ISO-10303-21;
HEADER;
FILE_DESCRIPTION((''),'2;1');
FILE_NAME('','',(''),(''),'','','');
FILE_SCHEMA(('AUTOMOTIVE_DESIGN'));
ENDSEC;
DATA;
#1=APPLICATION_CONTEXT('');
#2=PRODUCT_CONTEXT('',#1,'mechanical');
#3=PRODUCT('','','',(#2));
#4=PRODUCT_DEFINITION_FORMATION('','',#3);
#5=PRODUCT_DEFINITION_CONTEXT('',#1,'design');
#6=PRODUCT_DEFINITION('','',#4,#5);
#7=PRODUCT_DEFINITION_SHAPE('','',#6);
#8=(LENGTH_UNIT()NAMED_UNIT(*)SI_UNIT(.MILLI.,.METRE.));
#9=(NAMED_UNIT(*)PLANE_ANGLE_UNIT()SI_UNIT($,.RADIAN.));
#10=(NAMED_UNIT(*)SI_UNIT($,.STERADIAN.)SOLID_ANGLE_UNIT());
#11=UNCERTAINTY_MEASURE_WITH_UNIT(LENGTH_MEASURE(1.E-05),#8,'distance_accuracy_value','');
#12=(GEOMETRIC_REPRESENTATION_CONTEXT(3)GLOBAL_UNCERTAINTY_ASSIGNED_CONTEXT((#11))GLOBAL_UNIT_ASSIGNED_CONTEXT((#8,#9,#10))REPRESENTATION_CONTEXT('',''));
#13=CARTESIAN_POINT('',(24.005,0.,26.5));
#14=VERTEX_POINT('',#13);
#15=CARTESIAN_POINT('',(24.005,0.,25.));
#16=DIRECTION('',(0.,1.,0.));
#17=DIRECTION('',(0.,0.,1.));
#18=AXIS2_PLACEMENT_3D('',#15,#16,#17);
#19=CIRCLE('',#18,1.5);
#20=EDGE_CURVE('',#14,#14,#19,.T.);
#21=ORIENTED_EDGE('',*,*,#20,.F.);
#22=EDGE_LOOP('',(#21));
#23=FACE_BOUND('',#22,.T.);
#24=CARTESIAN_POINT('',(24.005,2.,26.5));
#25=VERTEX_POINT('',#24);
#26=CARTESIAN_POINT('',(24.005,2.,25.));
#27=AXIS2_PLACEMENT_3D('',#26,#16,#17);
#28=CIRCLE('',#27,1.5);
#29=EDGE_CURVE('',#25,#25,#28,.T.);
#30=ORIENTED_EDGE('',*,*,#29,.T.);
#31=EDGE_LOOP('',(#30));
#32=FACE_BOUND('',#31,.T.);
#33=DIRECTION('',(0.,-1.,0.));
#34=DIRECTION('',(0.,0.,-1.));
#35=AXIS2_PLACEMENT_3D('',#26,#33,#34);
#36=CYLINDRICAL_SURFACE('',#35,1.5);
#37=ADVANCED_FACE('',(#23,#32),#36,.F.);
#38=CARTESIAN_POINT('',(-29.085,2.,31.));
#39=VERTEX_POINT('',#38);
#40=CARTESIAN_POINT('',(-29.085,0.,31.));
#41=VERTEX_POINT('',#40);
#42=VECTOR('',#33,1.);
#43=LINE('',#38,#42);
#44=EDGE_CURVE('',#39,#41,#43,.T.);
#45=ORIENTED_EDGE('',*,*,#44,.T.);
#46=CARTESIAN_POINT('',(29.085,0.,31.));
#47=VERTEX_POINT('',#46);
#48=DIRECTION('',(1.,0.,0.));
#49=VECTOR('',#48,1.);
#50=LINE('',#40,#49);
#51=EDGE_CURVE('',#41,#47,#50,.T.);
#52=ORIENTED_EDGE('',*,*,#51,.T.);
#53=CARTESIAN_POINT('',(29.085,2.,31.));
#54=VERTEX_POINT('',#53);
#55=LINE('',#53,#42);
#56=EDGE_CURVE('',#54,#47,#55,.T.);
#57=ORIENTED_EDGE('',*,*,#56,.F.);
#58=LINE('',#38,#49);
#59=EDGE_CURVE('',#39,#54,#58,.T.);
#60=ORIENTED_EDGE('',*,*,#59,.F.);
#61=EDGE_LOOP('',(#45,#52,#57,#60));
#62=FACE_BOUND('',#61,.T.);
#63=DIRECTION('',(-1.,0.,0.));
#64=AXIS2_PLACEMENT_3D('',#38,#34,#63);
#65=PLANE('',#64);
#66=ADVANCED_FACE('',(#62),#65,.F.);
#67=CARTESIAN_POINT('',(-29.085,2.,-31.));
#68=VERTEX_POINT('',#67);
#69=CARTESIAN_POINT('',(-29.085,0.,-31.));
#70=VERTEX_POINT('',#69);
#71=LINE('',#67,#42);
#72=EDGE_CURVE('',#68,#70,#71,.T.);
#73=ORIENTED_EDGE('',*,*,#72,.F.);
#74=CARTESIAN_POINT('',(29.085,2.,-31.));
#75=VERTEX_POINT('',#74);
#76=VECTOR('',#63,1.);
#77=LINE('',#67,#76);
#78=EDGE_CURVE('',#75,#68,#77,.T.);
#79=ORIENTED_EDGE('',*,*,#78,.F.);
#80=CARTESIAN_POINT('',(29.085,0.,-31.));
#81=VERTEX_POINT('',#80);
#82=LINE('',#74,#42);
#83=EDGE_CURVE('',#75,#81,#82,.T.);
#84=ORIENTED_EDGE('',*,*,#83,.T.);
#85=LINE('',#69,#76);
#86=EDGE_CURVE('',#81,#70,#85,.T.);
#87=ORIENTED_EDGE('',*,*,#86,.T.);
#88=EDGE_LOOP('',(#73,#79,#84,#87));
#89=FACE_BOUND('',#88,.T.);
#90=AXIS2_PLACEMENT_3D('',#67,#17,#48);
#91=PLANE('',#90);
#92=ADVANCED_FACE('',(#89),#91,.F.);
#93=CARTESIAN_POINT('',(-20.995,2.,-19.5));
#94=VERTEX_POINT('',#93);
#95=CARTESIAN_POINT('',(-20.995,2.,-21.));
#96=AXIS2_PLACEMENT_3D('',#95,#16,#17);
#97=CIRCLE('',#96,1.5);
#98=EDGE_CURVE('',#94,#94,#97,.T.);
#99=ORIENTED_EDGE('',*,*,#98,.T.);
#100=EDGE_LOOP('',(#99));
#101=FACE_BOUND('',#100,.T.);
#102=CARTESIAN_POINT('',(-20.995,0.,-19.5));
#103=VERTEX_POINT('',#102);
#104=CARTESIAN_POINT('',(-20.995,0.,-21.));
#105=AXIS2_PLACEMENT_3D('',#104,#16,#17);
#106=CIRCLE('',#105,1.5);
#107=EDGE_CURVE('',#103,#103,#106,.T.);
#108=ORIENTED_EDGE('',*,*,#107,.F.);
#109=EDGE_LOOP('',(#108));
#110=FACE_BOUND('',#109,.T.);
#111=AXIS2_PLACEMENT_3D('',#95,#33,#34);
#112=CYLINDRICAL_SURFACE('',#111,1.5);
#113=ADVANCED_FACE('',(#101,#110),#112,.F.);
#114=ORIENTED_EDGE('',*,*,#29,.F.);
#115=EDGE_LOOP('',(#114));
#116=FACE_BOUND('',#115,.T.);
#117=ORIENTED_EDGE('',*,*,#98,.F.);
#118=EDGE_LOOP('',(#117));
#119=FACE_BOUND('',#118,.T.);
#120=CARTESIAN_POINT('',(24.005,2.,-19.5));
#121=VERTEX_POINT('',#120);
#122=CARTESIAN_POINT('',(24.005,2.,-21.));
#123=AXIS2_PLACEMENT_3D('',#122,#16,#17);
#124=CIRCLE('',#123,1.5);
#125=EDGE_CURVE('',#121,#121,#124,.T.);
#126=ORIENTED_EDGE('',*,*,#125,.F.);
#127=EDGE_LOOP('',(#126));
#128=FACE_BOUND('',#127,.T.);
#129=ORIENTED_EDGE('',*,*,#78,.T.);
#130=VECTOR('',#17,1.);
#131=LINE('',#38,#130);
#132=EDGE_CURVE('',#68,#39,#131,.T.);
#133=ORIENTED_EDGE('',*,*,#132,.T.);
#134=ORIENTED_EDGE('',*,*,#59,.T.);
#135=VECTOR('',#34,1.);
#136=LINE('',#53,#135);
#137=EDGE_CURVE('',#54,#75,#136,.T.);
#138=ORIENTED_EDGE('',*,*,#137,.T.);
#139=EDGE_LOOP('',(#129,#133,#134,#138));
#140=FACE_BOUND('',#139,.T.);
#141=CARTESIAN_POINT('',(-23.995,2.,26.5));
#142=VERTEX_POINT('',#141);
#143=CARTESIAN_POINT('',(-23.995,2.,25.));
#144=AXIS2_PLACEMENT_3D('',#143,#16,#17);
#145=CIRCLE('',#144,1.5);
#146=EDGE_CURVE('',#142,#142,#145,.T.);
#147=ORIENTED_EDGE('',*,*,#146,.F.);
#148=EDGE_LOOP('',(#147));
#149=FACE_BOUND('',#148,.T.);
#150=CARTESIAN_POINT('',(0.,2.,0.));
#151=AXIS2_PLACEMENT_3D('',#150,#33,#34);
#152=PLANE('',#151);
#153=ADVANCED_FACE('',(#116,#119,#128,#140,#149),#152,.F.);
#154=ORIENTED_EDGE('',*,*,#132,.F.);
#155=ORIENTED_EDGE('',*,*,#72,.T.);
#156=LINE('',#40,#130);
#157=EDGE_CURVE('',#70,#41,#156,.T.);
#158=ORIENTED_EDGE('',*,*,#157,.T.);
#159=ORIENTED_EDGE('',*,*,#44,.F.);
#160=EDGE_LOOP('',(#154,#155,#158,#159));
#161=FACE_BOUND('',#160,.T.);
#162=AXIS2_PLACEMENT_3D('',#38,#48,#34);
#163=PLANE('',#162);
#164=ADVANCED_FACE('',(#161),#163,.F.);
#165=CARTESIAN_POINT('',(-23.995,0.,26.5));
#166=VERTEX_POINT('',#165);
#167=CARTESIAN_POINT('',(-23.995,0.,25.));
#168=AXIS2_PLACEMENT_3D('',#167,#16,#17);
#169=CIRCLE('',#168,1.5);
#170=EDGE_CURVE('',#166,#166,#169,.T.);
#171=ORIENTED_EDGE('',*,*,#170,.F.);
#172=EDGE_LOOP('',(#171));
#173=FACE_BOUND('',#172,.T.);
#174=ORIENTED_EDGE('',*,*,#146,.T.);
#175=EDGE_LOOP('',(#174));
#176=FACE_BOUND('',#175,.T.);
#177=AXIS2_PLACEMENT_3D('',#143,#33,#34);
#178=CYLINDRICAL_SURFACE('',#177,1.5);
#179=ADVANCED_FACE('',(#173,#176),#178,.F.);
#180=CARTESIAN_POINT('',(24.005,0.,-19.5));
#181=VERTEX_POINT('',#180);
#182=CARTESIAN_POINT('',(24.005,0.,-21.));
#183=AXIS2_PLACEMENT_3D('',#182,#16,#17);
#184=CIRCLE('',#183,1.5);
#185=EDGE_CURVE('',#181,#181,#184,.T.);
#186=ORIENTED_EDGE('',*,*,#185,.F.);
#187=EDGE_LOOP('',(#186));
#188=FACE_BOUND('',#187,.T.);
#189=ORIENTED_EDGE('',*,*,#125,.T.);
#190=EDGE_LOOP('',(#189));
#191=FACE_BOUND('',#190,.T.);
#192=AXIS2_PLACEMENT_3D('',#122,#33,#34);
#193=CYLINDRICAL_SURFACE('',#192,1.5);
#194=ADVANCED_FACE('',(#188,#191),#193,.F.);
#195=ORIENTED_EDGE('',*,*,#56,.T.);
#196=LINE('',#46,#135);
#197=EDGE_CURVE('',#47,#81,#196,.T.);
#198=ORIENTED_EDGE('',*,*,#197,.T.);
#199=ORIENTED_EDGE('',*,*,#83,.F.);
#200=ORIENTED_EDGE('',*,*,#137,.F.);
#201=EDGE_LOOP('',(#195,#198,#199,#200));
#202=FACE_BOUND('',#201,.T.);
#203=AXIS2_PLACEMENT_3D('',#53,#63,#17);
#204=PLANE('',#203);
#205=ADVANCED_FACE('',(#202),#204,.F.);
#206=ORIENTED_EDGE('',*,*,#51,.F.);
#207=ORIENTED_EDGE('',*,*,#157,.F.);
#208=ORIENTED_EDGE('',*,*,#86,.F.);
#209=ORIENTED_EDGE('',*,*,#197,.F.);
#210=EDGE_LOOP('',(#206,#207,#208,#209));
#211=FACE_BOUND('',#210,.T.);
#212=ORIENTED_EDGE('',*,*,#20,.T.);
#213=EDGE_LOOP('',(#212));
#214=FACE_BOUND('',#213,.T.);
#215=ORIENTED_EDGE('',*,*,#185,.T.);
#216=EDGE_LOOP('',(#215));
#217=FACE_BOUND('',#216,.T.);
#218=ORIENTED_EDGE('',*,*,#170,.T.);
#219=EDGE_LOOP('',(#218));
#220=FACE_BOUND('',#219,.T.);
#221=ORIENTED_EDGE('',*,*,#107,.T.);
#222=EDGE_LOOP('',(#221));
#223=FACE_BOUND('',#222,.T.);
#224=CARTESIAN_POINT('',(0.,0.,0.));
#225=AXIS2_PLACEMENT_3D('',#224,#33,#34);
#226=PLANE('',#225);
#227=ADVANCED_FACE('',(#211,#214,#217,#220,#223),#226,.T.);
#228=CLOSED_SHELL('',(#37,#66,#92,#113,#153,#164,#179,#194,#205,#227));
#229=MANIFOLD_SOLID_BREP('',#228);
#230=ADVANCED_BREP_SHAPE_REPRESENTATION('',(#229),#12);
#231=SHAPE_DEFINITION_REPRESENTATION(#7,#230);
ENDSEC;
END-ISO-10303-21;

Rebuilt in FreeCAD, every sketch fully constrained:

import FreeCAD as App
import Part
import Sketcher
from FreeCAD import Vector


def add_polygon(sketch, points):
    """Adds a closed chain of lines whose ends are joined by coincident constraints."""
    first, n = sketch.GeometryCount, len(points)
    for a, b in zip(points, points[1:] + points[:1]):
        sketch.addGeometry(Part.LineSegment(App.Vector(*a, 0), App.Vector(*b, 0)), False)
    for i in range(n):
        sketch.addConstraint(Sketcher.Constraint("Coincident", first + i, 2, first + (i + 1) % n, 1))

doc = App.newDocument("Part")
body = doc.addObject("PartDesign::Body", "Body")

sketch1 = body.newObject("Sketcher::SketchObject", "Sketch")
sketch1.AttachmentSupport = (doc.getObject("XZ_Plane"), [""])
sketch1.MapMode = "FlatFace"
add_polygon(sketch1, [(-29.085, -31), (-29.085, 31), (29.085, 31), (29.085, -31)])
sketch1.addGeometry(Part.Circle(Vector(-23.995, 25, 0), Vector(0, 0, 1), 1.5), False)
sketch1.addGeometry(Part.Circle(Vector(24.005, 25, 0), Vector(0, 0, 1), 1.5), False)
sketch1.addGeometry(Part.Circle(Vector(-20.995, -21, 0), Vector(0, 0, 1), 1.5), False)
sketch1.addGeometry(Part.Circle(Vector(24.005, -21, 0), Vector(0, 0, 1), 1.5), False)
sketch1.addConstraint(Sketcher.Constraint("Vertical", 0))
sketch1.addConstraint(Sketcher.Constraint("Horizontal", 1))
sketch1.addConstraint(Sketcher.Constraint("Vertical", 2))
sketch1.addConstraint(Sketcher.Constraint("Horizontal", 3))
sketch1.addConstraint(Sketcher.Constraint("Equal", 4, 5))
sketch1.addConstraint(Sketcher.Constraint("Equal", 5, 6))
sketch1.addConstraint(Sketcher.Constraint("Equal", 6, 7))
sketch1.addConstraint(Sketcher.Constraint("Symmetric", 0, 2, 2, 2, -1, 1))
sketch1.addConstraint(Sketcher.Constraint("Horizontal", 4, 3, 5, 3))
sketch1.addConstraint(Sketcher.Constraint("Horizontal", 6, 3, 7, 3))
sketch1.addConstraint(Sketcher.Constraint("Vertical", 5, 3, 7, 3))
sketch1.addConstraint(Sketcher.Constraint("Diameter", 4, 3.0))
sketch1.addConstraint(Sketcher.Constraint("DistanceY", 0, 1, 0, 2, 62.0))
sketch1.addConstraint(Sketcher.Constraint("DistanceY", -1, 1, 4, 3, 25.0))
sketch1.addConstraint(Sketcher.Constraint("DistanceY", 6, 3, -1, 1, 21.0))
sketch1.addConstraint(Sketcher.Constraint("DistanceX", 4, 3, 5, 3, 48.0))
sketch1.addConstraint(Sketcher.Constraint("DistanceX", 4, 3, 6, 3, 3.0))
sketch1.addConstraint(Sketcher.Constraint("DistanceX", 1, 1, 1, 2, 58.17))
sketch1.addConstraint(Sketcher.Constraint("DistanceX", 0, 2, 4, 3, 5.09))
pad1 = body.newObject("PartDesign::Pad", "Pad")
pad1.Profile = sketch1
pad1.Length = 2
pad1.Reversed = True

doc.recompute()
